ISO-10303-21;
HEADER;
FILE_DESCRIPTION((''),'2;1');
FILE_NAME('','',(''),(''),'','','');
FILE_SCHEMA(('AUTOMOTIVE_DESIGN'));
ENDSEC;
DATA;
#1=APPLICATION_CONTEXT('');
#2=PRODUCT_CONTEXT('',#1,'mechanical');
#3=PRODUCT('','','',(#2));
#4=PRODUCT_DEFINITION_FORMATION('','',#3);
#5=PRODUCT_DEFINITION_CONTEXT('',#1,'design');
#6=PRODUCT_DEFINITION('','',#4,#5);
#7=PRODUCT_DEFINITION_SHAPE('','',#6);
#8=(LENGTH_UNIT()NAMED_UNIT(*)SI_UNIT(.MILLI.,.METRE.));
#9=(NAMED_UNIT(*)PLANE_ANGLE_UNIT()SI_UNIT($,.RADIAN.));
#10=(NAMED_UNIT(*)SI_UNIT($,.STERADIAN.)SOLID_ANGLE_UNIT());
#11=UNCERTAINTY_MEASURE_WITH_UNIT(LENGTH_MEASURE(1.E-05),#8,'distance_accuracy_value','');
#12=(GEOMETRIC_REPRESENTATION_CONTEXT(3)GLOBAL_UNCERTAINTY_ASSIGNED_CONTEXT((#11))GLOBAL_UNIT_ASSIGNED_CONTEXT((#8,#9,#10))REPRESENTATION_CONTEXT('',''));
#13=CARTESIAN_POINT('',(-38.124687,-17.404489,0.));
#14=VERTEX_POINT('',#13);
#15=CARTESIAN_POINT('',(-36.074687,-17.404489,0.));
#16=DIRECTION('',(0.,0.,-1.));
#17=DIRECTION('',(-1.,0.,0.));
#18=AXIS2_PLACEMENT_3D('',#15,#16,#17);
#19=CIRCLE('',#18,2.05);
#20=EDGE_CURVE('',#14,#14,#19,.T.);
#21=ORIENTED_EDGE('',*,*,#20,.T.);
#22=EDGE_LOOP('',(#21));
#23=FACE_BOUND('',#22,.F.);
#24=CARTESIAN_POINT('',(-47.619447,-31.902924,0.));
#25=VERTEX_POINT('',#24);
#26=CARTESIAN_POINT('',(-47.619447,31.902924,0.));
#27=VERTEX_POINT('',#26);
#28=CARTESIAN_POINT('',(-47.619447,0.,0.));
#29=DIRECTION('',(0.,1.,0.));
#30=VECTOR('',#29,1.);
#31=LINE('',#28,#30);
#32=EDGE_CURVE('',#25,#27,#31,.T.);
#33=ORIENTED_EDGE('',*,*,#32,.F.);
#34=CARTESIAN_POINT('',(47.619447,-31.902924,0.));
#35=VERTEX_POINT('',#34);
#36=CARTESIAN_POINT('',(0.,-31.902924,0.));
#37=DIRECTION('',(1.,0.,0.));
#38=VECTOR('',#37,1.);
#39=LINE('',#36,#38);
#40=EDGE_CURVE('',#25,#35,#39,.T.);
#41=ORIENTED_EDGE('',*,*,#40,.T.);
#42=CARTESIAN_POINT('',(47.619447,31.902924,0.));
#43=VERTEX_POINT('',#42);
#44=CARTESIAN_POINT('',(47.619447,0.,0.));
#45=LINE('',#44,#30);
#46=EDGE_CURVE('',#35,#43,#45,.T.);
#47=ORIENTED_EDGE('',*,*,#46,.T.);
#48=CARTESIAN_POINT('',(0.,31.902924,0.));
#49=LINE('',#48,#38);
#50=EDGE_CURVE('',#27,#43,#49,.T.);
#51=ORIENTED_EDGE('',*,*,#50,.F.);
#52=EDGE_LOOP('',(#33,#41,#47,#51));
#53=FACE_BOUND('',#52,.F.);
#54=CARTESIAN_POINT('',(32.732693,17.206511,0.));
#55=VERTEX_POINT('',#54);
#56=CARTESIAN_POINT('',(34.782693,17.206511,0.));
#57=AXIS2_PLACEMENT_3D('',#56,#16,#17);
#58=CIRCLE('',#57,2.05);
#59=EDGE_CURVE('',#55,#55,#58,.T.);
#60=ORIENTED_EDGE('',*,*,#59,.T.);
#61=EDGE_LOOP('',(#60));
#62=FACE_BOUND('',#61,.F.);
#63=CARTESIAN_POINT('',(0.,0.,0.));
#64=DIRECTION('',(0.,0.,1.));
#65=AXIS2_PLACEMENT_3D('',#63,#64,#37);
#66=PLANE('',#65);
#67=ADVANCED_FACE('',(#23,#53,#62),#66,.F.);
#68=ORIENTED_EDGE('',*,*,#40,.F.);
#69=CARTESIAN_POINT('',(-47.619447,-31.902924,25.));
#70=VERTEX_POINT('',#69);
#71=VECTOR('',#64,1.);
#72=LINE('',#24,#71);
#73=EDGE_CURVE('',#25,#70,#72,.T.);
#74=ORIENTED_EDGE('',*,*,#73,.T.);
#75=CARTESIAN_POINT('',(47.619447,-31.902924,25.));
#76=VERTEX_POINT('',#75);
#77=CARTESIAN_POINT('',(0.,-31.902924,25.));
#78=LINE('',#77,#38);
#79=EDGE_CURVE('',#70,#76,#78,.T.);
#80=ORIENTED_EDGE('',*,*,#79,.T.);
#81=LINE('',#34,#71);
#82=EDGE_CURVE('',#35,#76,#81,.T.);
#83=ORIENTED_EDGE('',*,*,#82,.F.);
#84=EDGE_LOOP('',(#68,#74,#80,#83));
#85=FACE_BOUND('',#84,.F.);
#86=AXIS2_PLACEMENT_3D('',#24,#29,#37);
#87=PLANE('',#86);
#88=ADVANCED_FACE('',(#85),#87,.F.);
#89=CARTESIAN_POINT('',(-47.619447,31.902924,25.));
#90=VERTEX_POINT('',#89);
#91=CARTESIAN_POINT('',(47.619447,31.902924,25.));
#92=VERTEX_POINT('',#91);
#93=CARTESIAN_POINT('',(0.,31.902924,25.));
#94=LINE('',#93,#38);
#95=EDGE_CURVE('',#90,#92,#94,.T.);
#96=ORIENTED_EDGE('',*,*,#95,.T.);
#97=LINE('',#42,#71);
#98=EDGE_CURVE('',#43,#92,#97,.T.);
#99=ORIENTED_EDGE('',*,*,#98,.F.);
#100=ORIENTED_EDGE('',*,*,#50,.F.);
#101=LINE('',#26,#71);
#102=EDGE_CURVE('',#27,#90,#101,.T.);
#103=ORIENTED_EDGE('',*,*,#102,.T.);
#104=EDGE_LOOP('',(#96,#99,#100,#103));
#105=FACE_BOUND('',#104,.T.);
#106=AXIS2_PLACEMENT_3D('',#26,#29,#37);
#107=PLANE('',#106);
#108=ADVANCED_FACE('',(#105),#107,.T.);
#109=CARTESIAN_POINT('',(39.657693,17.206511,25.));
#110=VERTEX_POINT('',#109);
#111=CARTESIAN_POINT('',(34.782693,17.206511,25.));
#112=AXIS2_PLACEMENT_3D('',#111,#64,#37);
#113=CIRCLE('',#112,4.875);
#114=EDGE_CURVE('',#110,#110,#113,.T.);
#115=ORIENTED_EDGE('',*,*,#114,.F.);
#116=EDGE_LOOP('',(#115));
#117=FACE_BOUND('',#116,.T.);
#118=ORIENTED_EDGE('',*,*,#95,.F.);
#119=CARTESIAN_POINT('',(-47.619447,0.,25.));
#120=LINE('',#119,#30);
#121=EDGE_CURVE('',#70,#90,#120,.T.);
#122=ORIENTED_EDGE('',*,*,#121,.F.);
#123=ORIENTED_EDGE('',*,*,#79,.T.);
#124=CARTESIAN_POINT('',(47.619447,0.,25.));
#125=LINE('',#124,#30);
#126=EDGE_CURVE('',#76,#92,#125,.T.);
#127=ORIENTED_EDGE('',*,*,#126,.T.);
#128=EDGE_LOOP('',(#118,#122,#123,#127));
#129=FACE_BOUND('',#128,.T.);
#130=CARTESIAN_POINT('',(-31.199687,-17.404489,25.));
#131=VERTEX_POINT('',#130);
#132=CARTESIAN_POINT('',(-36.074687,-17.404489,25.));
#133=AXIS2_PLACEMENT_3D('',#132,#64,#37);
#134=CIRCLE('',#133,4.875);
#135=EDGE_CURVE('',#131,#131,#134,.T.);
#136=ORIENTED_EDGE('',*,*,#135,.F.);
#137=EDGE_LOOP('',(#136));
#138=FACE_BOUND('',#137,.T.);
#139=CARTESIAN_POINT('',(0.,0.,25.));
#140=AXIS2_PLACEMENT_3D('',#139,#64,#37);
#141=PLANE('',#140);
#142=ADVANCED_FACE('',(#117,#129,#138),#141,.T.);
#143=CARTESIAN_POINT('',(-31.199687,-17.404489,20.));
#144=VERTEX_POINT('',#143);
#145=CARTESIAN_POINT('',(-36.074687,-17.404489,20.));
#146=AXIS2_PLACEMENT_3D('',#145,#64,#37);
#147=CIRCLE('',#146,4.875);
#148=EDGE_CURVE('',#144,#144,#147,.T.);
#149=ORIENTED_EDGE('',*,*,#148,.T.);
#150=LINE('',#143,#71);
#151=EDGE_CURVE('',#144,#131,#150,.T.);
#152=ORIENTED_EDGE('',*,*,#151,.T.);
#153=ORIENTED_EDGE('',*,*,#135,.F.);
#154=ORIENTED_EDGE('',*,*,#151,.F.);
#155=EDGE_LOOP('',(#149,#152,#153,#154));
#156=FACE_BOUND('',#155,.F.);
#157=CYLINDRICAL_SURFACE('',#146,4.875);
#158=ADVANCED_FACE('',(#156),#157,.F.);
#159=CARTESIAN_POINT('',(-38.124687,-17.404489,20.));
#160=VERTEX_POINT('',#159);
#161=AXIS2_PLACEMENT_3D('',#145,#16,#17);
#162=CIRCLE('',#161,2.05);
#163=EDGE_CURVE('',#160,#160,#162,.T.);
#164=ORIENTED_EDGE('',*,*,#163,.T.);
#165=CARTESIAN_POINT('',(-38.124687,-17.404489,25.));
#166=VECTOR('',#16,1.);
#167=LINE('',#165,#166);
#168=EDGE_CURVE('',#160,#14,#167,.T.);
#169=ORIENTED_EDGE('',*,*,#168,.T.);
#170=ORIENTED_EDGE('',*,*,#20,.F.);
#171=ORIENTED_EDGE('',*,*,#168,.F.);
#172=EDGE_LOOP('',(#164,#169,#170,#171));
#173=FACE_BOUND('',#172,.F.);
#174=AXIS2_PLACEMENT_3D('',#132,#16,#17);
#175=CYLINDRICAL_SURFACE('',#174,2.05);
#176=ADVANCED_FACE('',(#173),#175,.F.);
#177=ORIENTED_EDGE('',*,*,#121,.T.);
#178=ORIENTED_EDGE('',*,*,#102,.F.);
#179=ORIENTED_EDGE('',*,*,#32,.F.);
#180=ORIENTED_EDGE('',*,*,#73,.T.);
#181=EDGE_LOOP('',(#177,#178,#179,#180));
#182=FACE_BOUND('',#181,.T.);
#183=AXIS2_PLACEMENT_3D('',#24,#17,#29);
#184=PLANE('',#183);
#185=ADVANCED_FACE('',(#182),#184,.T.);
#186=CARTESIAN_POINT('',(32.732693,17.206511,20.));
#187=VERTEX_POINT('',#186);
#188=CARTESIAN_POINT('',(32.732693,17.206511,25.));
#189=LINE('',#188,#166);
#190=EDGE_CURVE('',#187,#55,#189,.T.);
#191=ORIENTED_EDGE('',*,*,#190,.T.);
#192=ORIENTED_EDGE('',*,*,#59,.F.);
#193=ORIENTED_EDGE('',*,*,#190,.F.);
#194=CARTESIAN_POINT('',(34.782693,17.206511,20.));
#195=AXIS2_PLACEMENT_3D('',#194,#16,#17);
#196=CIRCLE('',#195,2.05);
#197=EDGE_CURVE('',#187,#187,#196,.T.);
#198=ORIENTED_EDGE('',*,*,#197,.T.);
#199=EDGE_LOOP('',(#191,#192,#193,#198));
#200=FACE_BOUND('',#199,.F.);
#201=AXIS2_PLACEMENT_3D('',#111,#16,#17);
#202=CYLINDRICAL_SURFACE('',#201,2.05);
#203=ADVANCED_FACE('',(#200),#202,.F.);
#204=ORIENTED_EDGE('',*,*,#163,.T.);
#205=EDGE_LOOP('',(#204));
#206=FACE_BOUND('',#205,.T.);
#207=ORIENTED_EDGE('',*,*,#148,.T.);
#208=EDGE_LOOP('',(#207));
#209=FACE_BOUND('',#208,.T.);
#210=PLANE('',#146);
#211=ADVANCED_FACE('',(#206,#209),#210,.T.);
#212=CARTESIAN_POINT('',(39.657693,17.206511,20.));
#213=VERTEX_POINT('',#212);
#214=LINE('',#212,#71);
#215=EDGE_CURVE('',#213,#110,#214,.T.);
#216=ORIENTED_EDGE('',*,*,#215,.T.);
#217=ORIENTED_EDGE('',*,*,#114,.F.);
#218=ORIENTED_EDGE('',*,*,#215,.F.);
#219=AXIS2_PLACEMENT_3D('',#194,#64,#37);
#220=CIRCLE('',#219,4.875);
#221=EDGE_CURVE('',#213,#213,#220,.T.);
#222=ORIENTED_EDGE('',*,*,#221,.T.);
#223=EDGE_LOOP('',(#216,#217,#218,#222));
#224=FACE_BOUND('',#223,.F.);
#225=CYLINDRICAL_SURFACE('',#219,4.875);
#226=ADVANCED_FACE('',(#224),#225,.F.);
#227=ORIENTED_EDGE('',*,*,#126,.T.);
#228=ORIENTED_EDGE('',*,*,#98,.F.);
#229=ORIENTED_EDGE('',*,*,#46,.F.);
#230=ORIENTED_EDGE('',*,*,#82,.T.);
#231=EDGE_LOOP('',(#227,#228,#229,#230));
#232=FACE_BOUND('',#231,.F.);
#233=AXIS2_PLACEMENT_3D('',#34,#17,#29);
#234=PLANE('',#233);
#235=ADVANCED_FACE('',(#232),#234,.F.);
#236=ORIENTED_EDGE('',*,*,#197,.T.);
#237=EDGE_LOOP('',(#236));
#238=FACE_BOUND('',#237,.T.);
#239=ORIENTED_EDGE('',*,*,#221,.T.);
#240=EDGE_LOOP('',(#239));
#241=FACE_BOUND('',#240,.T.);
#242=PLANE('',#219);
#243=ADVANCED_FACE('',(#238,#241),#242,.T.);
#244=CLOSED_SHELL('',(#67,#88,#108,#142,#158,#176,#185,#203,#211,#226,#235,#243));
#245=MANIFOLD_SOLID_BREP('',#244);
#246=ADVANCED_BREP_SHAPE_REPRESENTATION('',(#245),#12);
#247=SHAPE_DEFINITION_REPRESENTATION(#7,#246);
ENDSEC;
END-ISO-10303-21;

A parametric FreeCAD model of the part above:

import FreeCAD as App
import Part
import Sketcher
from FreeCAD import Vector

doc = App.newDocument("Part")
body = doc.addObject("PartDesign::Body", "Body")

sketch1 = doc.addObject("Sketcher::SketchObject", "Sketch")
body.addObject(sketch1)
sketch1.AttachmentSupport = (doc.XY_Plane, [""])
sketch1.MapMode = "FlatFace"
sketch1.addGeometry(Part.LineSegment(Vector(-48, 32, 0), Vector(-48, -32, 0)), False)
sketch1.addGeometry(Part.LineSegment(Vector(-48, -32, 0), Vector(48, -32, 0)), False)
sketch1.addGeometry(Part.LineSegment(Vector(48, -32, 0), Vector(48, 32, 0)), False)
sketch1.addGeometry(Part.LineSegment(Vector(48, 32, 0), Vector(-48, 32, 0)), False)
sketch1.addConstraint(Sketcher.Constraint("Coincident", 0, 2, 1, 1))
sketch1.addConstraint(Sketcher.Constraint("Coincident", 1, 2, 2, 1))
sketch1.addConstraint(Sketcher.Constraint("Coincident", 2, 2, 3, 1))
sketch1.addConstraint(Sketcher.Constraint("Coincident", 3, 2, 0, 1))
sketch1.addConstraint(Sketcher.Constraint("Vertical", 0))
sketch1.addConstraint(Sketcher.Constraint("Horizontal", 1))
sketch1.addConstraint(Sketcher.Constraint("Vertical", 2))
sketch1.addConstraint(Sketcher.Constraint("Horizontal", 3))
sketch1.addConstraint(Sketcher.Constraint("Symmetric", 0, 2, 2, 2, -1, 1))
sketch1.addConstraint(Sketcher.Constraint("DistanceY", 0, 2, 0, 1, 63.805848))
sketch1.addConstraint(Sketcher.Constraint("DistanceX", 1, 1, 1, 2, 95.238894))
pad1 = doc.addObject("PartDesign::Pad", "Pad")
body.addObject(pad1)
pad1.Profile = sketch1
pad1.Length = 25

sketch2 = doc.addObject("Sketcher::SketchObject", "Sketch001")
body.addObject(sketch2)
sketch2.AttachmentSupport = (doc.XY_Plane, [""])
sketch2.MapMode = "FlatFace"
sketch2.AttachmentOffset = App.Placement(Vector(0, 0, 25), App.Rotation())
sketch2.addGeometry(Part.Circle(Vector(-36.1, -17.4, 0), Vector(0, 0, 1), 2), False)
sketch2.addConstraint(Sketcher.Constraint("Diameter", 0, 4.1))
sketch2.addConstraint(Sketcher.Constraint("DistanceY", 0, 3, -1, 1, 17.404489))
sketch2.addConstraint(Sketcher.Constraint("DistanceX", 0, 3, -1, 1, 36.074687))
doc.recompute()
hole = doc.addObject("PartDesign::Hole", "Hole")
body.addObject(hole)
hole.Profile = sketch2
hole.ThreadType = "None"
hole.Diameter = 4.1
hole.DepthType = "ThroughAll"
hole.HoleCutType = "Counterbore"
hole.HoleCutDiameter = 9.75
hole.HoleCutDepth = 5

sketch3 = doc.addObject("Sketcher::SketchObject", "Sketch002")
body.addObject(sketch3)
sketch3.AttachmentSupport = (doc.XY_Plane, [""])
sketch3.MapMode = "FlatFace"
sketch3.AttachmentOffset = App.Placement(Vector(0, 0, 25), App.Rotation())
sketch3.addGeometry(Part.Circle(Vector(34.8, 17.2, 0), Vector(0, 0, 1), 2), False)
sketch3.addConstraint(Sketcher.Constraint("Diameter", 0, 4.1))
sketch3.addConstraint(Sketcher.Constraint("DistanceY", -1, 1, 0, 3, 17.206511))
sketch3.addConstraint(Sketcher.Constraint("DistanceX", -1, 1, 0, 3, 34.782693))
doc.recompute()
hole2 = doc.addObject("PartDesign::Hole", "Hole001")
body.addObject(hole2)
hole2.Profile = sketch3
hole2.ThreadType = "None"
hole2.Diameter = 4.1
hole2.DepthType = "ThroughAll"
hole2.HoleCutType = "Counterbore"
hole2.HoleCutDiameter = 9.75
hole2.HoleCutDepth = 5

doc.recompute()
